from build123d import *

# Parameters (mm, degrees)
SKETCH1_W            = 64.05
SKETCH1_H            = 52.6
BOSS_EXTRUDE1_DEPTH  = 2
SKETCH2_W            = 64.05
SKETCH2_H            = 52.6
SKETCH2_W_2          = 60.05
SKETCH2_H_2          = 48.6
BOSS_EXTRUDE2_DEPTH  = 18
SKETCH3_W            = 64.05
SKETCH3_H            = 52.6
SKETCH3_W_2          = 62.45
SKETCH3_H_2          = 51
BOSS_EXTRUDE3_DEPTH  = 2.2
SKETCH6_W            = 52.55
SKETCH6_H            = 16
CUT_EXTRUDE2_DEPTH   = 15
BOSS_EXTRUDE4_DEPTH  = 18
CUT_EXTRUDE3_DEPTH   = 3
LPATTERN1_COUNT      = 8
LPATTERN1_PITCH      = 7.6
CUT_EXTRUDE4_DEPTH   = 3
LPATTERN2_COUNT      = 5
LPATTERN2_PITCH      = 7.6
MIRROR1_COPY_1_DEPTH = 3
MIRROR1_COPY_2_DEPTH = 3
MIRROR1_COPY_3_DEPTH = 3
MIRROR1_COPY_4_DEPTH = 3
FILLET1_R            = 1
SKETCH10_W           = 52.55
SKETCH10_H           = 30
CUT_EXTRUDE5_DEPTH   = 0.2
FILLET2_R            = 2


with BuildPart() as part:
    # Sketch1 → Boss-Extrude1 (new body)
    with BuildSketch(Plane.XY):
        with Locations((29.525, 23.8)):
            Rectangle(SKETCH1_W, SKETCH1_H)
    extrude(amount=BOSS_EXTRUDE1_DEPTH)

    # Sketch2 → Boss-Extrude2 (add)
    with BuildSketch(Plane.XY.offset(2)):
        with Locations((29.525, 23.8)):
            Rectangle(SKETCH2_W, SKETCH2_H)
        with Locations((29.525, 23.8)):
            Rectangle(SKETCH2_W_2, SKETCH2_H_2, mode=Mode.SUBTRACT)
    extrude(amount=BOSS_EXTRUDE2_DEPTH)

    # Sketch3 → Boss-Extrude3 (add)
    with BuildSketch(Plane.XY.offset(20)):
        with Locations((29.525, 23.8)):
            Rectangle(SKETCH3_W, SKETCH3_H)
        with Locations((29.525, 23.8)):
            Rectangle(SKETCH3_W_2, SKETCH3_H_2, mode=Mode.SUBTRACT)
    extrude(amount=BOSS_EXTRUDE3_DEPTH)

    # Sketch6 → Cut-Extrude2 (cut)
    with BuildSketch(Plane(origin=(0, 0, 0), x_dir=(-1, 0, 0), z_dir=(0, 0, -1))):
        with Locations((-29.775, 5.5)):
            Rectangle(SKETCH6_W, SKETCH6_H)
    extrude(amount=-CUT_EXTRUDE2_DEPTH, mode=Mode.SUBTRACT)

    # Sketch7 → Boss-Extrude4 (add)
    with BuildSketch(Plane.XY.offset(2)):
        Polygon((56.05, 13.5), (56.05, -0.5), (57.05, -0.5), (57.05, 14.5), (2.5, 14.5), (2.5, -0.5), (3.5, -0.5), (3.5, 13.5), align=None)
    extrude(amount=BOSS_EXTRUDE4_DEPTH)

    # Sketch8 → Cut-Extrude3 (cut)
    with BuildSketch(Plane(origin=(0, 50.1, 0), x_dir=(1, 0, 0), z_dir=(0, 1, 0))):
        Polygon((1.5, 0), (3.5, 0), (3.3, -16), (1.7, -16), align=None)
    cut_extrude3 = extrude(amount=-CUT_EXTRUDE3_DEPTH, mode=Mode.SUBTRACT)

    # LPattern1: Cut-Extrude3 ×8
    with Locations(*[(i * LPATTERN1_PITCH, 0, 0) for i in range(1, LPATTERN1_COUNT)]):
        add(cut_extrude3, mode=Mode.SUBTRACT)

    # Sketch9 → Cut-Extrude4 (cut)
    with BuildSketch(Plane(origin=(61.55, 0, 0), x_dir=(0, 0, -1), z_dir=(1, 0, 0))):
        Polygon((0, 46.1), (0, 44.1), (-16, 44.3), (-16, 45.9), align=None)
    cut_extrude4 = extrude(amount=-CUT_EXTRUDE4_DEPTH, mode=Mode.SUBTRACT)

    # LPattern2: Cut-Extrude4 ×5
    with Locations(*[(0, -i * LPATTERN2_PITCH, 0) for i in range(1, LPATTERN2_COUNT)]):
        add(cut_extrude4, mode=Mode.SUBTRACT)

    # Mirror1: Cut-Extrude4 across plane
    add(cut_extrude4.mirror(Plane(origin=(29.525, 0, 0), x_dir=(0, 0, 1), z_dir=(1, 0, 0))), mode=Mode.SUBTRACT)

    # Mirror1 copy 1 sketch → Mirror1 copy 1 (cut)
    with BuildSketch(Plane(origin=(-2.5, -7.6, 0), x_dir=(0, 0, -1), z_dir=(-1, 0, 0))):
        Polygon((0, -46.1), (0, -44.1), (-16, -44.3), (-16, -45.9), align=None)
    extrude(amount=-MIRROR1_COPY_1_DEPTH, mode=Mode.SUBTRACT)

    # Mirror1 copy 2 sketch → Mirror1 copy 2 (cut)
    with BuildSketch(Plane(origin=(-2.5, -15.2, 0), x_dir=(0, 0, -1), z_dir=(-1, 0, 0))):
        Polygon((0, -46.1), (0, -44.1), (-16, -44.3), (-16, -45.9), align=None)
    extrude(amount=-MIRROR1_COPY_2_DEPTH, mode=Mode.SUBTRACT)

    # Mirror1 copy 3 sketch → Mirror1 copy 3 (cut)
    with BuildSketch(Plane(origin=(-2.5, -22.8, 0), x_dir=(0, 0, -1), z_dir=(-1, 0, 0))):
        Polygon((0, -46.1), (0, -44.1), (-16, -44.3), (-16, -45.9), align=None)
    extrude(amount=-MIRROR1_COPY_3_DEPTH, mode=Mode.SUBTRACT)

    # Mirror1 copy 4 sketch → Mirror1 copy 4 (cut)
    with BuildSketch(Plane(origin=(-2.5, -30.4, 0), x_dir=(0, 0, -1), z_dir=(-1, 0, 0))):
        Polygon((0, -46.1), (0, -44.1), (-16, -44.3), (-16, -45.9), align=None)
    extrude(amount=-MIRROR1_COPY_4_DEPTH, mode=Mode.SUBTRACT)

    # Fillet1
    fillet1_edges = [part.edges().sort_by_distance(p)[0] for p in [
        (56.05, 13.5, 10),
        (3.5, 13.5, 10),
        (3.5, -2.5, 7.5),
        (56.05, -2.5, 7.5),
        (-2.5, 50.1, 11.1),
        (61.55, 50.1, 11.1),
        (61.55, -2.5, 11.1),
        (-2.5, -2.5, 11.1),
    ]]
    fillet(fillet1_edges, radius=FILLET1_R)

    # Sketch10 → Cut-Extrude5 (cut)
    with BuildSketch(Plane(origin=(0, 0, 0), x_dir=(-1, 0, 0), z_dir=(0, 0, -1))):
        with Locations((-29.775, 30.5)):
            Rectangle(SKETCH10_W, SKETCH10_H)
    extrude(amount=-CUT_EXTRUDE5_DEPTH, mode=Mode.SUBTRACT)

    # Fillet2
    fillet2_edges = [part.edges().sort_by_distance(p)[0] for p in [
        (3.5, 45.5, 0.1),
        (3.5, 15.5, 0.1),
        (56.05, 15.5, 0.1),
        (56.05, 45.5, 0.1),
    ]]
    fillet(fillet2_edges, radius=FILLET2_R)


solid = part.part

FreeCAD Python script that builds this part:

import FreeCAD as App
import Part
import Sketcher

V = App.Vector
Q = App.Units.Quantity


def edges_at(feature, points):
    """Names of the edges that pass closest to the given points."""
    edges = feature.Shape.Edges
    near = lambda p: min(range(len(edges)), key=lambda i: edges[i].distToShape(Part.Vertex(*p))[0])
    return sorted({f"Edge{near(p) + 1}" for p in points})

doc = App.newDocument("Part")
body = doc.addObject("PartDesign::Body", "Body")

# Sketch on XY plane
sketch1 = doc.addObject("Sketcher::SketchObject", "Sketch")
body.addObject(sketch1)
sketch1.AttachmentSupport = (doc.XY_Plane, [""])
sketch1.MapMode = "FlatFace"
sketch1.addGeometry(Part.LineSegment(V(-2.5, 50.1, 0), V(-2.5, -2.5, 0)), False)
sketch1.addGeometry(Part.LineSegment(V(-2.5, -2.5, 0), V(61.55, -2.5, 0)), False)
sketch1.addGeometry(Part.LineSegment(V(61.55, -2.5, 0), V(61.55, 50.1, 0)), False)
sketch1.addGeometry(Part.LineSegment(V(61.55, 50.1, 0), V(-2.5, 50.1, 0)), False)
sketch1.addConstraint(Sketcher.Constraint("Coincident", 0, 2, 1, 1))
sketch1.addConstraint(Sketcher.Constraint("Coincident", 1, 2, 2, 1))
sketch1.addConstraint(Sketcher.Constraint("Coincident", 2, 2, 3, 1))
sketch1.addConstraint(Sketcher.Constraint("Coincident", 3, 2, 0, 1))
sketch1.addConstraint(Sketcher.Constraint("Vertical", 0))
sketch1.addConstraint(Sketcher.Constraint("Horizontal", 1))
sketch1.addConstraint(Sketcher.Constraint("Vertical", 2))
sketch1.addConstraint(Sketcher.Constraint("Horizontal", 3))
sketch1.addConstraint(Sketcher.Constraint("DistanceY", 0, 2, 0, 1, Q("52.6 mm")))
sketch1.addConstraint(Sketcher.Constraint("DistanceX", 1, 1, 1, 2, Q("64.05 mm")))
sketch1.addConstraint(Sketcher.Constraint("DistanceX", 0, 2, -1, 1, Q("2.5 mm")))
sketch1.addConstraint(Sketcher.Constraint("DistanceY", 0, 2, -1, 1, Q("2.5 mm")))
pad1 = doc.addObject("PartDesign::Pad", "Pad")
body.addObject(pad1)
pad1.Profile = sketch1
pad1.Length = 2

# Sketch on XY plane
sketch2 = doc.addObject("Sketcher::SketchObject", "Sketch001")
body.addObject(sketch2)
sketch2.AttachmentSupport = (doc.XY_Plane, [""])
sketch2.MapMode = "FlatFace"
sketch2.AttachmentOffset = App.Placement(V(0, 0, 2), App.Rotation())
sketch2.addGeometry(Part.LineSegment(V(-2.5, 50.1, 0), V(-2.5, -2.5, 0)), False)
sketch2.addGeometry(Part.LineSegment(V(-2.5, -2.5, 0), V(61.55, -2.5, 0)), False)
sketch2.addGeometry(Part.LineSegment(V(61.55, -2.5, 0), V(61.55, 50.1, 0)), False)
sketch2.addGeometry(Part.LineSegment(V(61.55, 50.1, 0), V(-2.5, 50.1, 0)), False)
sketch2.addGeometry(Part.LineSegment(V(59.55, -0.5, 0), V(-0.5, -0.5, 0)), False)
sketch2.addGeometry(Part.LineSegment(V(-0.5, -0.5, 0), V(-0.5, 48.1, 0)), False)
sketch2.addGeometry(Part.LineSegment(V(-0.5, 48.1, 0), V(59.55, 48.1, 0)), False)
sketch2.addGeometry(Part.LineSegment(V(59.55, 48.1, 0), V(59.55, -0.5, 0)), False)
sketch2.addConstraint(Sketcher.Constraint("Coincident", 0, 2, 1, 1))
sketch2.addConstraint(Sketcher.Constraint("Coincident", 1, 2, 2, 1))
sketch2.addConstraint(Sketcher.Constraint("Coincident", 2, 2, 3, 1))
sketch2.addConstraint(Sketcher.Constraint("Coincident", 3, 2, 0, 1))
sketch2.addConstraint(Sketcher.Constraint("Coincident", 4, 2, 5, 1))
sketch2.addConstraint(Sketcher.Constraint("Coincident", 5, 2, 6, 1))
sketch2.addConstraint(Sketcher.Constraint("Coincident", 6, 2, 7, 1))
sketch2.addConstraint(Sketcher.Constraint("Coincident", 7, 2, 4, 1))
sketch2.addConstraint(Sketcher.Constraint("Vertical", 0))
sketch2.addConstraint(Sketcher.Constraint("Horizontal", 1))
sketch2.addConstraint(Sketcher.Constraint("Vertical", 2))
sketch2.addConstraint(Sketcher.Constraint("Horizontal", 3))
sketch2.addConstraint(Sketcher.Constraint("Horizontal", 4))
sketch2.addConstraint(Sketcher.Constraint("Vertical", 5))
sketch2.addConstraint(Sketcher.Constraint("Horizontal", 6))
sketch2.addConstraint(Sketcher.Constraint("Vertical", 7))
sketch2.addConstraint(Sketcher.Constraint("DistanceY", 0, 2, 0, 1, Q("52.6 mm")))
sketch2.addConstraint(Sketcher.Constraint("DistanceY", 5, 1, 5, 2, Q("48.6 mm")))
sketch2.addConstraint(Sketcher.Constraint("DistanceX", 0, 2, 4, 2, Q("2 mm")))
sketch2.addConstraint(Sketcher.Constraint("DistanceY", 0, 2, 4, 2, Q("2 mm")))
sketch2.addConstraint(Sketcher.Constraint("DistanceX", 6, 2, 2, 2, Q("2 mm")))
sketch2.addConstraint(Sketcher.Constraint("DistanceX", 1, 1, 1, 2, Q("64.05 mm")))
sketch2.addConstraint(Sketcher.Constraint("DistanceX", 0, 2, -1, 1, Q("2.5 mm")))
sketch2.addConstraint(Sketcher.Constraint("DistanceY", 0, 2, -1, 1, Q("2.5 mm")))
pad2 = doc.addObject("PartDesign::Pad", "Pad001")
body.addObject(pad2)
pad2.Profile = sketch2
pad2.Length = 18

# Sketch on XY plane
sketch3 = doc.addObject("Sketcher::SketchObject", "Sketch002")
body.addObject(sketch3)
sketch3.AttachmentSupport = (doc.XY_Plane, [""])
sketch3.MapMode = "FlatFace"
sketch3.AttachmentOffset = App.Placement(V(0, 0, 20), App.Rotation())
sketch3.addGeometry(Part.LineSegment(V(-2.5, 50.1, 0), V(-2.5, -2.5, 0)), False)
sketch3.addGeometry(Part.LineSegment(V(-2.5, -2.5, 0), V(61.55, -2.5, 0)), False)
sketch3.addGeometry(Part.LineSegment(V(61.55, -2.5, 0), V(61.55, 50.1, 0)), False)
sketch3.addGeometry(Part.LineSegment(V(61.55, 50.1, 0), V(-2.5, 50.1, 0)), False)
sketch3.addGeometry(Part.LineSegment(V(60.75, -1.7, 0), V(-1.7, -1.7, 0)), False)
sketch3.addGeometry(Part.LineSegment(V(-1.7, -1.7, 0), V(-1.7, 49.3, 0)), False)
sketch3.addGeometry(Part.LineSegment(V(-1.7, 49.3, 0), V(60.75, 49.3, 0)), False)
sketch3.addGeometry(Part.LineSegment(V(60.75, 49.3, 0), V(60.75, -1.7, 0)), False)
sketch3.addConstraint(Sketcher.Constraint("Coincident", 0, 2, 1, 1))
sketch3.addConstraint(Sketcher.Constraint("Coincident", 1, 2, 2, 1))
sketch3.addConstraint(Sketcher.Constraint("Coincident", 2, 2, 3, 1))
sketch3.addConstraint(Sketcher.Constraint("Coincident", 3, 2, 0, 1))
sketch3.addConstraint(Sketcher.Constraint("Coincident", 4, 2, 5, 1))
sketch3.addConstraint(Sketcher.Constraint("Coincident", 5, 2, 6, 1))
sketch3.addConstraint(Sketcher.Constraint("Coincident", 6, 2, 7, 1))
sketch3.addConstraint(Sketcher.Constraint("Coincident", 7, 2, 4, 1))
sketch3.addConstraint(Sketcher.Constraint("Vertical", 0))
sketch3.addConstraint(Sketcher.Constraint("Horizontal", 1))
sketch3.addConstraint(Sketcher.Constraint("Vertical", 2))
sketch3.addConstraint(Sketcher.Constraint("Horizontal", 3))
sketch3.addConstraint(Sketcher.Constraint("Horizontal", 4))
sketch3.addConstraint(Sketcher.Constraint("Vertical", 5))
sketch3.addConstraint(Sketcher.Constraint("Horizontal", 6))
sketch3.addConstraint(Sketcher.Constraint("Vertical", 7))
sketch3.addConstraint(Sketcher.Constraint("DistanceY", 5, 1, 5, 2, Q("51 mm")))
sketch3.addConstraint(Sketcher.Constraint("DistanceY", 0, 2, 0, 1, Q("52.6 mm")))
sketch3.addConstraint(Sketcher.Constraint("DistanceX", 1, 1, 1, 2, Q("64.05 mm")))
sketch3.addConstraint(Sketcher.Constraint("DistanceX", 4, 2, 4, 1, Q("62.45 mm")))
sketch3.addConstraint(Sketcher.Constraint("DistanceX", 0, 2, -1, 1, Q("2.5 mm")))
sketch3.addConstraint(Sketcher.Constraint("DistanceY", 0, 2, -1, 1, Q("2.5 mm")))
sketch3.addConstraint(Sketcher.Constraint("DistanceX", 4, 2, -1, 1, Q("1.7 mm")))
sketch3.addConstraint(Sketcher.Constraint("DistanceY", 4, 2, -1, 1, Q("1.7 mm")))
pad3 = doc.addObject("PartDesign::Pad", "Pad002")
body.addObject(pad3)
pad3.Profile = sketch3
pad3.Length = 2.2

# Sketch on XY plane
sketch4 = doc.addObject("Sketcher::SketchObject", "Sketch003")
body.addObject(sketch4)
sketch4.AttachmentSupport = (doc.XY_Plane, [""])
sketch4.MapMode = "FlatFace"
sketch4.addGeometry(Part.LineSegment(V(56.05, 13.5, 0), V(56.05, -2.5, 0)), False)
sketch4.addGeometry(Part.LineSegment(V(56.05, -2.5, 0), V(3.5, -2.5, 0)), False)
sketch4.addGeometry(Part.LineSegment(V(3.5, -2.5, 0), V(3.5, 13.5, 0)), False)
sketch4.addGeometry(Part.LineSegment(V(3.5, 13.5, 0), V(56.05, 13.5, 0)), False)
sketch4.addConstraint(Sketcher.Constraint("Coincident", 0, 2, 1, 1))
sketch4.addConstraint(Sketcher.Constraint("Coincident", 1, 2, 2, 1))
sketch4.addConstraint(Sketcher.Constraint("Coincident", 2, 2, 3, 1))
sketch4.addConstraint(Sketcher.Constraint("Coincident", 3, 2, 0, 1))
sketch4.addConstraint(Sketcher.Constraint("Vertical", 0))
sketch4.addConstraint(Sketcher.Constraint("Horizontal", 1))
sketch4.addConstraint(Sketcher.Constraint("Vertical", 2))
sketch4.addConstraint(Sketcher.Constraint("Horizontal", 3))
sketch4.addConstraint(Sketcher.Constraint("DistanceY", 0, 2, 0, 1, Q("16 mm")))
sketch4.addConstraint(Sketcher.Constraint("DistanceX", 1, 2, 1, 1, Q("52.55 mm")))
sketch4.addConstraint(Sketcher.Constraint("DistanceY", 0, 2, -1, 1, Q("2.5 mm")))
sketch4.addConstraint(Sketcher.Constraint("DistanceX", -1, 1, 1, 2, Q("3.5 mm")))
pocket1 = doc.addObject("PartDesign::Pocket", "Pocket")
body.addObject(pocket1)
pocket1.Profile = sketch4
pocket1.Length = 15
pocket1.Reversed = True

# Sketch on XY plane
sketch5 = doc.addObject("Sketcher::SketchObject", "Sketch004")
body.addObject(sketch5)
sketch5.AttachmentSupport = (doc.XY_Plane, [""])
sketch5.MapMode = "FlatFace"
sketch5.AttachmentOffset = App.Placement(V(0, 0, 2), App.Rotation())
sketch5.addGeometry(Part.LineSegment(V(56.05, 13.5, 0), V(56.05, -0.5, 0)), False)
sketch5.addGeometry(Part.LineSegment(V(56.05, -0.5, 0), V(57.05, -0.5, 0)), False)
sketch5.addGeometry(Part.LineSegment(V(57.05, -0.5, 0), V(57.05, 14.5, 0)), False)
sketch5.addGeometry(Part.LineSegment(V(57.05, 14.5, 0), V(2.5, 14.5, 0)), False)
sketch5.addGeometry(Part.LineSegment(V(2.5, 14.5, 0), V(2.5, -0.5, 0)), False)
sketch5.addGeometry(Part.LineSegment(V(2.5, -0.5, 0), V(3.5, -0.5, 0)), False)
sketch5.addGeometry(Part.LineSegment(V(3.5, -0.5, 0), V(3.5, 13.5, 0)), False)
sketch5.addGeometry(Part.LineSegment(V(3.5, 13.5, 0), V(56.05, 13.5, 0)), False)
sketch5.addConstraint(Sketcher.Constraint("Coincident", 0, 2, 1, 1))
sketch5.addConstraint(Sketcher.Constraint("Coincident", 1, 2, 2, 1))
sketch5.addConstraint(Sketcher.Constraint("Coincident", 2, 2, 3, 1))
sketch5.addConstraint(Sketcher.Constraint("Coincident", 3, 2, 4, 1))
sketch5.addConstraint(Sketcher.Constraint("Coincident", 4, 2, 5, 1))
sketch5.addConstraint(Sketcher.Constraint("Coincident", 5, 2, 6, 1))
sketch5.addConstraint(Sketcher.Constraint("Coincident", 6, 2, 7, 1))
sketch5.addConstraint(Sketcher.Constraint("Coincident", 7, 2, 0, 1))
sketch5.addConstraint(Sketcher.Constraint("Vertical", 0))
sketch5.addConstraint(Sketcher.Constraint("Horizontal", 1))
sketch5.addConstraint(Sketcher.Constraint("Vertical", 2))
sketch5.addConstraint(Sketcher.Constraint("Horizontal", 3))
sketch5.addConstraint(Sketcher.Constraint("Vertical", 4))
sketch5.addConstraint(Sketcher.Constraint("Horizontal", 5))
sketch5.addConstraint(Sketcher.Constraint("Vertical", 6))
sketch5.addConstraint(Sketcher.Constraint("Horizontal", 7))
sketch5.addConstraint(Sketcher.Constraint("Horizontal", 1, 2, 4, 2))
sketch5.addConstraint(Sketcher.Constraint("Equal", 1, 5))
sketch5.addConstraint(Sketcher.Constraint("DistanceX", 1, 1, 1, 2, Q("1 mm")))
sketch5.addConstraint(Sketcher.Constraint("DistanceY", 0, 2, 0, 1, Q("14 mm")))
sketch5.addConstraint(Sketcher.Constraint("DistanceY", 2, 1, 2, 2, Q("15 mm")))
sketch5.addConstraint(Sketcher.Constraint("DistanceX", 3, 2, 3, 1, Q("54.55 mm")))
sketch5.addConstraint(Sketcher.Constraint("DistanceY", 0, 2, -1, 1, Q("0.5 mm")))
sketch5.addConstraint(Sketcher.Constraint("DistanceX", -1, 1, 3, 2, Q("2.5 mm")))
pad4 = doc.addObject("PartDesign::Pad", "Pad003")
body.addObject(pad4)
pad4.Profile = sketch5
pad4.Length = 18

# Sketch on XZ plane
sketch6 = doc.addObject("Sketcher::SketchObject", "Sketch005")
body.addObject(sketch6)
sketch6.AttachmentSupport = (doc.XZ_Plane, [""])
sketch6.MapMode = "FlatFace"
sketch6.AttachmentOffset = App.Placement(V(0, 0, -50.1), App.Rotation())
sketch6.addGeometry(Part.LineSegment(V(3.5, 0, 0), V(1.5, 0, 0)), False)
sketch6.addGeometry(Part.LineSegment(V(1.5, 0, 0), V(1.7, 16, 0)), False)
sketch6.addGeometry(Part.LineSegment(V(1.7, 16, 0), V(3.3, 16, 0)), False)
sketch6.addGeometry(Part.LineSegment(V(3.3, 16, 0), V(3.5, 0, 0)), False)
sketch6.addConstraint(Sketcher.Constraint("Coincident", 0, 2, 1, 1))
sketch6.addConstraint(Sketcher.Constraint("Coincident", 1, 2, 2, 1))
sketch6.addConstraint(Sketcher.Constraint("Coincident", 2, 2, 3, 1))
sketch6.addConstraint(Sketcher.Constraint("Coincident", 3, 2, 0, 1))
sketch6.addConstraint(Sketcher.Constraint("Horizontal", 0))
sketch6.addConstraint(Sketcher.Constraint("Horizontal", 2))
sketch6.addConstraint(Sketcher.Constraint("PointOnObject", 0, 2, -1))
sketch6.addConstraint(Sketcher.Constraint("Equal", 1, 3))
sketch6.addConstraint(Sketcher.Constraint("DistanceX", 0, 2, 0, 1, Q("2 mm")))
sketch6.addConstraint(Sketcher.Constraint("DistanceX", 2, 1, 2, 2, Q("1.6 mm")))
sketch6.addConstraint(Sketcher.Constraint("DistanceY", -1, 1, 1, 2, Q("16 mm")))
sketch6.addConstraint(Sketcher.Constraint("DistanceX", -1, 1, 0, 2, Q("1.5 mm")))
pocket2 = doc.addObject("PartDesign::Pocket", "Pocket001")
body.addObject(pocket2)
pocket2.Profile = sketch6
pocket2.Length = 3
pocket2.Reversed = True
doc.recompute()

linearpattern = doc.addObject("PartDesign::LinearPattern", "LinearPattern")
body.addObject(linearpattern)
linearpattern.Originals = [pocket2]
linearpattern.Direction = (doc.X_Axis, [""])
linearpattern.Mode = "offset"
linearpattern.Offset = 7.6
linearpattern.Occurrences = 8
body.Tip = linearpattern

# Sketch on YZ plane
sketch7 = doc.addObject("Sketcher::SketchObject", "Sketch006")
body.addObject(sketch7)
sketch7.AttachmentSupport = (doc.YZ_Plane, [""])
sketch7.MapMode = "FlatFace"
sketch7.AttachmentOffset = App.Placement(V(0, 0, 61.55), App.Rotation())
sketch7.addGeometry(Part.LineSegment(V(44.1, 0, 0), V(46.1, 0, 0)), False)
sketch7.addGeometry(Part.LineSegment(V(46.1, 0, 0), V(45.9, 16, 0)), False)
sketch7.addGeometry(Part.LineSegment(V(45.9, 16, 0), V(44.3, 16, 0)), False)
sketch7.addGeometry(Part.LineSegment(V(44.3, 16, 0), V(44.1, 0, 0)), False)
sketch7.addConstraint(Sketcher.Constraint("Coincident", 0, 2, 1, 1))
sketch7.addConstraint(Sketcher.Constraint("Coincident", 1, 2, 2, 1))
sketch7.addConstraint(Sketcher.Constraint("Coincident", 2, 2, 3, 1))
sketch7.addConstraint(Sketcher.Constraint("Coincident", 3, 2, 0, 1))
sketch7.addConstraint(Sketcher.Constraint("Horizontal", 0))
sketch7.addConstraint(Sketcher.Constraint("Horizontal", 2))
sketch7.addConstraint(Sketcher.Constraint("PointOnObject", 0, 2, -1))
sketch7.addConstraint(Sketcher.Constraint("Equal", 1, 3))
sketch7.addConstraint(Sketcher.Constraint("DistanceX", 0, 1, 0, 2, Q("2 mm")))
sketch7.addConstraint(Sketcher.Constraint("DistanceX", 2, 2, 2, 1, Q("1.6 mm")))
sketch7.addConstraint(Sketcher.Constraint("DistanceY", -1, 1, 1, 2, Q("16 mm")))
sketch7.addConstraint(Sketcher.Constraint("DistanceX", -1, 1, 0, 2, Q("46.1 mm")))
pocket3 = doc.addObject("PartDesign::Pocket", "Pocket002")
body.addObject(pocket3)
pocket3.Profile = sketch7
pocket3.Length = 3
doc.recompute()

linearpattern2 = doc.addObject("PartDesign::LinearPattern", "LinearPattern001")
body.addObject(linearpattern2)
linearpattern2.Originals = [pocket3]
linearpattern2.Direction = (doc.Y_Axis, [""])
linearpattern2.Mode = "offset"
linearpattern2.Offset = 7.6
linearpattern2.Occurrences = 5
linearpattern2.Reversed = True
body.Tip = linearpattern2
doc.recompute()

datumplane = doc.addObject("PartDesign::Plane", "DatumPlane")
body.addObject(datumplane)
datumplane.AttachmentSupport = (doc.YZ_Plane, [""])
datumplane.MapMode = "FlatFace"
datumplane.AttachmentOffset = App.Placement(V(0, 0, 29.525), App.Rotation())
mirrored = doc.addObject("PartDesign::Mirrored", "Mirrored")
body.addObject(mirrored)
mirrored.Originals = [pocket3]
mirrored.MirrorPlane = (datumplane, [""])
body.Tip = mirrored

# Sketch on YZ plane
sketch8 = doc.addObject("Sketcher::SketchObject", "Sketch007")
body.addObject(sketch8)
sketch8.AttachmentSupport = (doc.YZ_Plane, [""])
sketch8.MapMode = "FlatFace"
sketch8.AttachmentOffset = App.Placement(V(0, 0, -2.5), App.Rotation())
sketch8.addGeometry(Part.LineSegment(V(38.5, 0, 0), V(36.5, 0, 0)), False)
sketch8.addGeometry(Part.LineSegment(V(36.5, 0, 0), V(36.7, 16, 0)), False)
sketch8.addGeometry(Part.LineSegment(V(36.7, 16, 0), V(38.3, 16, 0)), False)
sketch8.addGeometry(Part.LineSegment(V(38.3, 16, 0), V(38.5, 0, 0)), False)
sketch8.addConstraint(Sketcher.Constraint("Coincident", 0, 2, 1, 1))
sketch8.addConstraint(Sketcher.Constraint("Coincident", 1, 2, 2, 1))
sketch8.addConstraint(Sketcher.Constraint("Coincident", 2, 2, 3, 1))
sketch8.addConstraint(Sketcher.Constraint("Coincident", 3, 2, 0, 1))
sketch8.addConstraint(Sketcher.Constraint("Horizontal", 0))
sketch8.addConstraint(Sketcher.Constraint("Horizontal", 2))
sketch8.addConstraint(Sketcher.Constraint("PointOnObject", 0, 2, -1))
sketch8.addConstraint(Sketcher.Constraint("Equal", 1, 3))
sketch8.addConstraint(Sketcher.Constraint("DistanceX", 0, 2, 0, 1, Q("2 mm")))
sketch8.addConstraint(Sketcher.Constraint("DistanceX", 2, 1, 2, 2, Q("1.6 mm")))
sketch8.addConstraint(Sketcher.Constraint("DistanceY", -1, 1, 1, 2, Q("16 mm")))
sketch8.addConstraint(Sketcher.Constraint("DistanceX", -1, 1, 0, 2, Q("36.5 mm")))
pocket4 = doc.addObject("PartDesign::Pocket", "Pocket003")
body.addObject(pocket4)
pocket4.Profile = sketch8
pocket4.Length = 3
pocket4.Reversed = True

# Sketch on YZ plane
sketch9 = doc.addObject("Sketcher::SketchObject", "Sketch008")
body.addObject(sketch9)
sketch9.AttachmentSupport = (doc.YZ_Plane, [""])
sketch9.MapMode = "FlatFace"
sketch9.AttachmentOffset = App.Placement(V(0, 0, -2.5), App.Rotation())
sketch9.addGeometry(Part.LineSegment(V(30.9, 0, 0), V(28.9, 0, 0)), False)
sketch9.addGeometry(Part.LineSegment(V(28.9, 0, 0), V(29.1, 16, 0)), False)
sketch9.addGeometry(Part.LineSegment(V(29.1, 16, 0), V(30.7, 16, 0)), False)
sketch9.addGeometry(Part.LineSegment(V(30.7, 16, 0), V(30.9, 0, 0)), False)
sketch9.addConstraint(Sketcher.Constraint("Coincident", 0, 2, 1, 1))
sketch9.addConstraint(Sketcher.Constraint("Coincident", 1, 2, 2, 1))
sketch9.addConstraint(Sketcher.Constraint("Coincident", 2, 2, 3, 1))
sketch9.addConstraint(Sketcher.Constraint("Coincident", 3, 2, 0, 1))
sketch9.addConstraint(Sketcher.Constraint("Horizontal", 0))
sketch9.addConstraint(Sketcher.Constraint("Horizontal", 2))
sketch9.addConstraint(Sketcher.Constraint("PointOnObject", 0, 2, -1))
sketch9.addConstraint(Sketcher.Constraint("Equal", 1, 3))
sketch9.addConstraint(Sketcher.Constraint("DistanceX", 0, 2, 0, 1, Q("2 mm")))
sketch9.addConstraint(Sketcher.Constraint("DistanceX", 2, 1, 2, 2, Q("1.6 mm")))
sketch9.addConstraint(Sketcher.Constraint("DistanceY", -1, 1, 1, 2, Q("16 mm")))
sketch9.addConstraint(Sketcher.Constraint("DistanceX", -1, 1, 0, 2, Q("28.9 mm")))
pocket5 = doc.addObject("PartDesign::Pocket", "Pocket004")
body.addObject(pocket5)
pocket5.Profile = sketch9
pocket5.Length = 3
pocket5.Reversed = True

# Sketch on YZ plane
sketch10 = doc.addObject("Sketcher::SketchObject", "Sketch009")
body.addObject(sketch10)
sketch10.AttachmentSupport = (doc.YZ_Plane, [""])
sketch10.MapMode = "FlatFace"
sketch10.AttachmentOffset = App.Placement(V(0, 0, -2.5), App.Rotation())
sketch10.addGeometry(Part.LineSegment(V(23.3, 0, 0), V(21.3, 0, 0)), False)
sketch10.addGeometry(Part.LineSegment(V(21.3, 0, 0), V(21.5, 16, 0)), False)
sketch10.addGeometry(Part.LineSegment(V(21.5, 16, 0), V(23.1, 16, 0)), False)
sketch10.addGeometry(Part.LineSegment(V(23.1, 16, 0), V(23.3, 0, 0)), False)
sketch10.addConstraint(Sketcher.Constraint("Coincident", 0, 2, 1, 1))
sketch10.addConstraint(Sketcher.Constraint("Coincident", 1, 2, 2, 1))
sketch10.addConstraint(Sketcher.Constraint("Coincident", 2, 2, 3, 1))
sketch10.addConstraint(Sketcher.Constraint("Coincident", 3, 2, 0, 1))
sketch10.addConstraint(Sketcher.Constraint("Horizontal", 0))
sketch10.addConstraint(Sketcher.Constraint("Horizontal", 2))
sketch10.addConstraint(Sketcher.Constraint("PointOnObject", 0, 2, -1))
sketch10.addConstraint(Sketcher.Constraint("Equal", 1, 3))
sketch10.addConstraint(Sketcher.Constraint("DistanceX", 0, 2, 0, 1, Q("2 mm")))
sketch10.addConstraint(Sketcher.Constraint("DistanceX", 2, 1, 2, 2, Q("1.6 mm")))
sketch10.addConstraint(Sketcher.Constraint("DistanceY", -1, 1, 1, 2, Q("16 mm")))
sketch10.addConstraint(Sketcher.Constraint("DistanceX", -1, 1, 0, 2, Q("21.3 mm")))
pocket6 = doc.addObject("PartDesign::Pocket", "Pocket005")
body.addObject(pocket6)
pocket6.Profile = sketch10
pocket6.Length = 3
pocket6.Reversed = True

# Sketch on YZ plane
sketch11 = doc.addObject("Sketcher::SketchObject", "Sketch010")
body.addObject(sketch11)
sketch11.AttachmentSupport = (doc.YZ_Plane, [""])
sketch11.MapMode = "FlatFace"
sketch11.AttachmentOffset = App.Placement(V(0, 0, -2.5), App.Rotation())
sketch11.addGeometry(Part.LineSegment(V(15.7, 0, 0), V(13.7, 0, 0)), False)
sketch11.addGeometry(Part.LineSegment(V(13.7, 0, 0), V(13.9, 16, 0)), False)
sketch11.addGeometry(Part.LineSegment(V(13.9, 16, 0), V(15.5, 16, 0)), False)
sketch11.addGeometry(Part.LineSegment(V(15.5, 16, 0), V(15.7, 0, 0)), False)
sketch11.addConstraint(Sketcher.Constraint("Coincident", 0, 2, 1, 1))
sketch11.addConstraint(Sketcher.Constraint("Coincident", 1, 2, 2, 1))
sketch11.addConstraint(Sketcher.Constraint("Coincident", 2, 2, 3, 1))
sketch11.addConstraint(Sketcher.Constraint("Coincident", 3, 2, 0, 1))
sketch11.addConstraint(Sketcher.Constraint("Horizontal", 0))
sketch11.addConstraint(Sketcher.Constraint("Horizontal", 2))
sketch11.addConstraint(Sketcher.Constraint("PointOnObject", 0, 2, -1))
sketch11.addConstraint(Sketcher.Constraint("Equal", 1, 3))
sketch11.addConstraint(Sketcher.Constraint("DistanceX", 0, 2, 0, 1, Q("2 mm")))
sketch11.addConstraint(Sketcher.Constraint("DistanceX", 2, 1, 2, 2, Q("1.6 mm")))
sketch11.addConstraint(Sketcher.Constraint("DistanceY", -1, 1, 1, 2, Q("16 mm")))
sketch11.addConstraint(Sketcher.Constraint("DistanceX", -1, 1, 0, 2, Q("13.7 mm")))
pocket7 = doc.addObject("PartDesign::Pocket", "Pocket006")
body.addObject(pocket7)
pocket7.Profile = sketch11
pocket7.Length = 3
pocket7.Reversed = True
doc.recompute()

fillet = doc.addObject("PartDesign::Fillet", "Fillet")
body.addObject(fillet)
fillet.Base = (pocket7, edges_at(pocket7, [
    (56.05, 13.5, 10),
    (3.5, 13.5, 10),
    (3.5, -2.5, 7.5),
    (56.05, -2.5, 7.5),
    (-2.5, 50.1, 11.1),
    (61.55, 50.1, 11.1),
    (61.55, -2.5, 11.1),
    (-2.5, -2.5, 11.1),
]))
fillet.Radius = 1

# Sketch on XY plane
sketch12 = doc.addObject("Sketcher::SketchObject", "Sketch011")
body.addObject(sketch12)
sketch12.AttachmentSupport = (doc.XY_Plane, [""])
sketch12.MapMode = "FlatFace"
sketch12.addGeometry(Part.LineSegment(V(56.05, 45.5, 0), V(56.05, 15.5, 0)), False)
sketch12.addGeometry(Part.LineSegment(V(56.05, 15.5, 0), V(3.5, 15.5, 0)), False)
sketch12.addGeometry(Part.LineSegment(V(3.5, 15.5, 0), V(3.5, 45.5, 0)), False)
sketch12.addGeometry(Part.LineSegment(V(3.5, 45.5, 0), V(56.05, 45.5, 0)), False)
sketch12.addConstraint(Sketcher.Constraint("Coincident", 0, 2, 1, 1))
sketch12.addConstraint(Sketcher.Constraint("Coincident", 1, 2, 2, 1))
sketch12.addConstraint(Sketcher.Constraint("Coincident", 2, 2, 3, 1))
sketch12.addConstraint(Sketcher.Constraint("Coincident", 3, 2, 0, 1))
sketch12.addConstraint(Sketcher.Constraint("Vertical", 0))
sketch12.addConstraint(Sketcher.Constraint("Horizontal", 1))
sketch12.addConstraint(Sketcher.Constraint("Vertical", 2))
sketch12.addConstraint(Sketcher.Constraint("Horizontal", 3))
sketch12.addConstraint(Sketcher.Constraint("DistanceY", 0, 2, 0, 1, Q("30 mm")))
sketch12.addConstraint(Sketcher.Constraint("DistanceX", 1, 2, 1, 1, Q("52.55 mm")))
sketch12.addConstraint(Sketcher.Constraint("DistanceY", -1, 1, 0, 2, Q("15.5 mm")))
sketch12.addConstraint(Sketcher.Constraint("DistanceX", -1, 1, 1, 2, Q("3.5 mm")))
pocket8 = doc.addObject("PartDesign::Pocket", "Pocket007")
body.addObject(pocket8)
pocket8.Profile = sketch12
pocket8.Length = 0.2
pocket8.Reversed = True
doc.recompute()

fillet2 = doc.addObject("PartDesign::Fillet", "Fillet001")
body.addObject(fillet2)
fillet2.Base = (pocket8, edges_at(pocket8, [
    (3.5, 45.5, 0.1),
    (3.5, 15.5, 0.1),
    (56.05, 15.5, 0.1),
    (56.05, 45.5, 0.1),
]))
fillet2.Radius = 2

doc.recompute()
